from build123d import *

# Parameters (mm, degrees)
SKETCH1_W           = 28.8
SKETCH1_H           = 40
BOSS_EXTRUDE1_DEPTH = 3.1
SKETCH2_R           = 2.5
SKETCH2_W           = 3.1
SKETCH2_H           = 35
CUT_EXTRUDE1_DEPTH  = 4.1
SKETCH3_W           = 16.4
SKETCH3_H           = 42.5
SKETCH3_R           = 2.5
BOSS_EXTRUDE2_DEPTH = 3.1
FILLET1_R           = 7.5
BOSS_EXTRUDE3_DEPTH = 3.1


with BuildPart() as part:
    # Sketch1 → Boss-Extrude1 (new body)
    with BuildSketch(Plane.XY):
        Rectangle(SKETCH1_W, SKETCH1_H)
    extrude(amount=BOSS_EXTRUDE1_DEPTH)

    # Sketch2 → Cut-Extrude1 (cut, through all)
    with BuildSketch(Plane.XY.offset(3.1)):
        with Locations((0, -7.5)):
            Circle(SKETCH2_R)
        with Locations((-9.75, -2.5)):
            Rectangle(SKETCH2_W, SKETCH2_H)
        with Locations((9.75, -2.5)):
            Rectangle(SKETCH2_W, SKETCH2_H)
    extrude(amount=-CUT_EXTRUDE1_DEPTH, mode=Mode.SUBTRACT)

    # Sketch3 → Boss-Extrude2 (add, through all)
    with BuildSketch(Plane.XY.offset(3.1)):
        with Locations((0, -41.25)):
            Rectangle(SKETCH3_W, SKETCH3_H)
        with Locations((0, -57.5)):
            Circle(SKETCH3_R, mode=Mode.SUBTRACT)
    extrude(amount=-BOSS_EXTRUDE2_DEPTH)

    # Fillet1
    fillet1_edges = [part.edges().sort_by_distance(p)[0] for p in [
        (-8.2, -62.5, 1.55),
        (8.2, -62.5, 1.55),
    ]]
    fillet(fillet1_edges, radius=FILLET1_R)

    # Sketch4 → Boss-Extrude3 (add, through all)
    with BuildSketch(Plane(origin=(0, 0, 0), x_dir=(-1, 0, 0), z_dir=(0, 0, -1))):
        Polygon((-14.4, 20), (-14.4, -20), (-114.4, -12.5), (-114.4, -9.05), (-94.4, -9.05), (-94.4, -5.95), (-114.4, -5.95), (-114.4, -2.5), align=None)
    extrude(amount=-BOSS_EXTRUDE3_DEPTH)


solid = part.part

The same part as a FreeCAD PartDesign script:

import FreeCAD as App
import Part
import Sketcher


def edges_at(feature, points):
    """Names of the edges that pass closest to the given points."""
    edges = feature.Shape.Edges
    near = lambda p: min(range(len(edges)), key=lambda i: edges[i].distToShape(Part.Vertex(*p))[0])
    return sorted({f"Edge{near(p) + 1}" for p in points})


def add_polygon(sketch, points):
    """Adds a closed chain of lines whose ends are joined by coincident constraints."""
    first, n = sketch.GeometryCount, len(points)
    for a, b in zip(points, points[1:] + points[:1]):
        sketch.addGeometry(Part.LineSegment(App.Vector(*a, 0), App.Vector(*b, 0)), False)
    for i in range(n):
        sketch.addConstraint(Sketcher.Constraint("Coincident", first + i, 2, first + (i + 1) % n, 1))

doc = App.newDocument("Part")
body = doc.addObject("PartDesign::Body", "Body")

# Sketch on XY plane
sketch1 = body.newObject("Sketcher::SketchObject", "Sketch")
sketch1.AttachmentSupport = (doc.getObject("XY_Plane"), [""])
sketch1.MapMode = "FlatFace"
add_polygon(sketch1, [(-14.4, 20), (-14.4, -20), (14.4, -20), (14.4, 20)])  # lines 0-3
sketch1.addConstraint(Sketcher.Constraint("Vertical", 0))
sketch1.addConstraint(Sketcher.Constraint("Horizontal", 1))
sketch1.addConstraint(Sketcher.Constraint("Vertical", 2))
sketch1.addConstraint(Sketcher.Constraint("Horizontal", 3))
sketch1.addConstraint(Sketcher.Constraint("Symmetric", 0, 2, 2, 2, -1, 1))
sketch1.addConstraint(Sketcher.Constraint("DistanceY", 0, 2, 0, 1, 40.0))
sketch1.addConstraint(Sketcher.Constraint("DistanceX", 1, 1, 1, 2, 28.8))
pad1 = body.newObject("PartDesign::Pad", "Pad")
pad1.Profile = sketch1
pad1.Length = 3.1

# Sketch on XY plane
sketch2 = body.newObject("Sketcher::SketchObject", "Sketch001")
sketch2.AttachmentSupport = (doc.getObject("XY_Plane"), [""])
sketch2.MapMode = "FlatFace"
sketch2.AttachmentOffset = App.Placement(App.Vector(0, 0, 3.1), App.Rotation())
sketch2.addGeometry(Part.Circle(App.Vector(0, -7.5, 0), App.Vector(0, 0, 1), 2.5), False)  # 0
add_polygon(sketch2, [(-11.3, 15), (-11.3, -20), (-8.2, -20), (-8.2, 15)])  # lines 1-4
add_polygon(sketch2, [(8.2, 15), (8.2, -20), (11.3, -20), (11.3, 15)])  # lines 5-8
sketch2.addConstraint(Sketcher.Constraint("Vertical", 1))
sketch2.addConstraint(Sketcher.Constraint("Horizontal", 2))
sketch2.addConstraint(Sketcher.Constraint("Vertical", 3))
sketch2.addConstraint(Sketcher.Constraint("Horizontal", 4))
sketch2.addConstraint(Sketcher.Constraint("Vertical", 5))
sketch2.addConstraint(Sketcher.Constraint("Horizontal", 6))
sketch2.addConstraint(Sketcher.Constraint("Vertical", 7))
sketch2.addConstraint(Sketcher.Constraint("Horizontal", 8))
sketch2.addConstraint(Sketcher.Constraint("Symmetric", 2, 2, 5, 2, -2))
sketch2.addConstraint(Sketcher.Constraint("Symmetric", 4, 2, 7, 2, -2))
sketch2.addConstraint(Sketcher.Constraint("PointOnObject", 0, 3, -2))
sketch2.addConstraint(Sketcher.Constraint("Diameter", 0, 5.0))
sketch2.addConstraint(Sketcher.Constraint("DistanceY", 1, 2, 1, 1, 35.0))
sketch2.addConstraint(Sketcher.Constraint("DistanceX", 2, 1, 2, 2, 3.1))
sketch2.addConstraint(Sketcher.Constraint("DistanceY", 1, 2, -1, 1, 20.0))
sketch2.addConstraint(Sketcher.Constraint("DistanceY", 0, 3, -1, 1, 7.5))
sketch2.addConstraint(Sketcher.Constraint("DistanceX", 1, 2, -1, 1, 11.3))
pocket1 = body.newObject("PartDesign::Pocket", "Pocket")
pocket1.Profile = sketch2
pocket1.Type = "ThroughAll"

# Sketch on XY plane
sketch3 = body.newObject("Sketcher::SketchObject", "Sketch002")
sketch3.AttachmentSupport = (doc.getObject("XY_Plane"), [""])
sketch3.MapMode = "FlatFace"
sketch3.AttachmentOffset = App.Placement(App.Vector(0, 0, 3.1), App.Rotation())
add_polygon(sketch3, [(-8.2, -20), (-8.2, -62.5), (8.2, -62.5), (8.2, -20)])  # lines 0-3
sketch3.addGeometry(Part.Circle(App.Vector(0, -57.5, 0), App.Vector(0, 0, 1), 2.5), False)  # 4
sketch3.addConstraint(Sketcher.Constraint("Vertical", 0))
sketch3.addConstraint(Sketcher.Constraint("Horizontal", 1))
sketch3.addConstraint(Sketcher.Constraint("Vertical", 2))
sketch3.addConstraint(Sketcher.Constraint("Horizontal", 3))
sketch3.addConstraint(Sketcher.Constraint("PointOnObject", 4, 3, -2))
sketch3.addConstraint(Sketcher.Constraint("Diameter", 4, 5.0))
sketch3.addConstraint(Sketcher.Constraint("DistanceX", 1, 1, 1, 2, 16.4))
sketch3.addConstraint(Sketcher.Constraint("DistanceY", 0, 2, 0, 1, 42.5))
sketch3.addConstraint(Sketcher.Constraint("DistanceY", 2, 2, -1, 1, 20.0))
sketch3.addConstraint(Sketcher.Constraint("DistanceY", 0, 2, 4, 3, 5.0))
sketch3.addConstraint(Sketcher.Constraint("DistanceX", 0, 2, -1, 1, 8.2))
pad2 = body.newObject("PartDesign::Pad", "Pad001")
pad2.Profile = sketch3
pad2.Length = 3.1
pad2.Reversed = True
doc.recompute()

fillet = body.newObject("PartDesign::Fillet", "Fillet")
fillet.Base = (pad2, edges_at(pad2, [(-8.2, -62.5, 1.55), (8.2, -62.5, 1.55)]))
fillet.Radius = 7.5

# Sketch on XY plane
sketch4 = body.newObject("Sketcher::SketchObject", "Sketch003")
sketch4.AttachmentSupport = (doc.getObject("XY_Plane"), [""])
sketch4.MapMode = "FlatFace"
add_polygon(sketch4, [(14.4, -20), (14.4, 20), (114.4, -2.5), (114.4, -5.95), (94.4, -5.95), (94.4, -9.05), (114.4, -9.05), (114.4, -12.5)])  # lines 0-7
sketch4.addConstraint(Sketcher.Constraint("Vertical", 0))
sketch4.addConstraint(Sketcher.Constraint("Vertical", 2))
sketch4.addConstraint(Sketcher.Constraint("Horizontal", 3))
sketch4.addConstraint(Sketcher.Constraint("Vertical", 4))
sketch4.addConstraint(Sketcher.Constraint("Horizontal", 5))
sketch4.addConstraint(Sketcher.Constraint("Vertical", 6))
sketch4.addConstraint(Sketcher.Constraint("Vertical", 2, 2, 5, 2))
sketch4.addConstraint(Sketcher.Constraint("Equal", 2, 6))
sketch4.addConstraint(Sketcher.Constraint("DistanceX", 3, 2, 3, 1, 20.0))
sketch4.addConstraint(Sketcher.Constraint("DistanceY", 0, 1, 0, 2, 40.0))
sketch4.addConstraint(Sketcher.Constraint("DistanceY", 4, 2, 4, 1, 3.1))
sketch4.addConstraint(Sketcher.Constraint("DistanceY", -1, 1, 0, 2, 20.0))
sketch4.addConstraint(Sketcher.Constraint("DistanceX", 0, 2, 1, 2, 100.0))
sketch4.addConstraint(Sketcher.Constraint("DistanceY", 6, 2, 1, 2, 10.0))
sketch4.addConstraint(Sketcher.Constraint("Distance", 1, 102.5))
sketch4.addConstraint(Sketcher.Constraint("DistanceX", -1, 1, 0, 2, 14.4))
pad3 = body.newObject("PartDesign::Pad", "Pad002")
pad3.Profile = sketch4
pad3.Length = 3.1

doc.recompute()
